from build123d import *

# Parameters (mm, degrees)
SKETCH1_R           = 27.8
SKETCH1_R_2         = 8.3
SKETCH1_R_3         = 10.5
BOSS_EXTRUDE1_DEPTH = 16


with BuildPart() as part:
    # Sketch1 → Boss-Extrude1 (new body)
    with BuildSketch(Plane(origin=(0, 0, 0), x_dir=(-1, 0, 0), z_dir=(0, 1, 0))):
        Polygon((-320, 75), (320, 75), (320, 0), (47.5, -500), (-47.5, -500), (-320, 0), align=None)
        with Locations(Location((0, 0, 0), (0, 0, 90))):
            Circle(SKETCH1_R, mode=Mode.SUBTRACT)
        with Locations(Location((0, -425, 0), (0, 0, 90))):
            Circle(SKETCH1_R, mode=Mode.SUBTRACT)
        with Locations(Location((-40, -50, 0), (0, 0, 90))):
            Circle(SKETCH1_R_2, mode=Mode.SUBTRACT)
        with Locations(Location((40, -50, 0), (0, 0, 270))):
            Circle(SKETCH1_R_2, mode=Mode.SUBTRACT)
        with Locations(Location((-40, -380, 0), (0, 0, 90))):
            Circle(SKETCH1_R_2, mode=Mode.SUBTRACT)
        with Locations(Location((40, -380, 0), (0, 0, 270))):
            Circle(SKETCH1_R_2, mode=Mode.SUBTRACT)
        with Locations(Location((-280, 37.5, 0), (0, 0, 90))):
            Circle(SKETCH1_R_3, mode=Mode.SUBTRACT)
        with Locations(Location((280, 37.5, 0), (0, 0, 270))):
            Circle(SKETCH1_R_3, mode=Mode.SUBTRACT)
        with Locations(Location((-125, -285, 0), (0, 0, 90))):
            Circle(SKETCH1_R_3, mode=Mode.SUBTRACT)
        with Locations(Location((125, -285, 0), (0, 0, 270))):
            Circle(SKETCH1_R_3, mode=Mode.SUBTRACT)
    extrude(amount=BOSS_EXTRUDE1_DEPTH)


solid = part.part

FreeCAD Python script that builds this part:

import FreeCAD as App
import Part
import Sketcher

doc = App.newDocument("Part")
body = doc.addObject("PartDesign::Body", "Body")

# Sketch on XZ plane
sketch1 = doc.addObject("Sketcher::SketchObject", "Sketch")
body.addObject(sketch1)
sketch1.AttachmentSupport = (doc.XZ_Plane, [""])
sketch1.MapMode = "FlatFace"
sketch1.addGeometry(Part.LineSegment(App.Vector(-320, 75, 0), App.Vector(320, 75, 0)), False)
sketch1.addGeometry(Part.LineSegment(App.Vector(320, 75, 0), App.Vector(320, 0, 0)), False)
sketch1.addGeometry(Part.LineSegment(App.Vector(320, 0, 0), App.Vector(47.5, -500, 0)), False)
sketch1.addGeometry(Part.LineSegment(App.Vector(47.5, -500, 0), App.Vector(-47.5, -500, 0)), False)
sketch1.addGeometry(Part.LineSegment(App.Vector(-47.5, -500, 0), App.Vector(-320, 0, 0)), False)
sketch1.addGeometry(Part.LineSegment(App.Vector(-320, 0, 0), App.Vector(-320, 75, 0)), False)
sketch1.addGeometry(Part.Circle(App.Vector(-40, -380, 0), App.Vector(0, 0, 1), 8.3), False)
sketch1.addGeometry(Part.Circle(App.Vector(-125, -285, 0), App.Vector(0, 0, 1), 10.5), False)
sketch1.addGeometry(Part.Circle(App.Vector(0, -425, 0), App.Vector(0, 0, 1), 27.8), False)
sketch1.addGeometry(Part.Circle(App.Vector(40, -380, 0), App.Vector(0, 0, 1), 8.3), False)
sketch1.addGeometry(Part.Circle(App.Vector(125, -285, 0), App.Vector(0, 0, 1), 10.5), False)
sketch1.addGeometry(Part.Circle(App.Vector(-280, 37.5, 0), App.Vector(0, 0, 1), 10.5), False)
sketch1.addGeometry(Part.Circle(App.Vector(-40, -50, 0), App.Vector(0, 0, 1), 8.3), False)
sketch1.addGeometry(Part.Circle(App.Vector(40, -50, 0), App.Vector(0, 0, 1), 8.3), False)
sketch1.addGeometry(Part.Circle(App.Vector(0, 0, 0), App.Vector(0, 0, 1), 27.8), False)
sketch1.addGeometry(Part.Circle(App.Vector(280, 37.5, 0), App.Vector(0, 0, 1), 10.5), False)
sketch1.addConstraint(Sketcher.Constraint("Coincident", 0, 2, 1, 1))
sketch1.addConstraint(Sketcher.Constraint("Coincident", 1, 2, 2, 1))
sketch1.addConstraint(Sketcher.Constraint("Coincident", 2, 2, 3, 1))
sketch1.addConstraint(Sketcher.Constraint("Coincident", 3, 2, 4, 1))
sketch1.addConstraint(Sketcher.Constraint("Coincident", 4, 2, 5, 1))
sketch1.addConstraint(Sketcher.Constraint("Coincident", 5, 2, 0, 1))
sketch1.addConstraint(Sketcher.Constraint("Horizontal", 0))
sketch1.addConstraint(Sketcher.Constraint("Vertical", 1))
sketch1.addConstraint(Sketcher.Constraint("Horizontal", 3))
sketch1.addConstraint(Sketcher.Constraint("Vertical", 5))
sketch1.addConstraint(Sketcher.Constraint("Coincident", 14, 3, -1, 1))
sketch1.addConstraint(Sketcher.Constraint("Equal", 6, 9))
sketch1.addConstraint(Sketcher.Constraint("Equal", 7, 10))
sketch1.addConstraint(Sketcher.Constraint("Equal", 10, 11))
sketch1.addConstraint(Sketcher.Constraint("Equal", 9, 12))
sketch1.addConstraint(Sketcher.Constraint("Equal", 12, 13))
sketch1.addConstraint(Sketcher.Constraint("Equal", 8, 14))
sketch1.addConstraint(Sketcher.Constraint("Equal", 11, 15))
sketch1.addConstraint(Sketcher.Constraint("Symmetric", 1, 2, 4, 2, -1, 1))
sketch1.addConstraint(Sketcher.Constraint("Symmetric", 6, 3, 9, 3, -2))
sketch1.addConstraint(Sketcher.Constraint("Symmetric", 7, 3, 10, 3, -2))
sketch1.addConstraint(Sketcher.Constraint("Symmetric", 12, 3, 13, 3, -2))
sketch1.addConstraint(Sketcher.Constraint("Symmetric", 11, 3, 15, 3, -2))
sketch1.addConstraint(Sketcher.Constraint("PointOnObject", 8, 3, -2))
sketch1.addConstraint(Sketcher.Constraint("PointOnObject", 1, 2, -1))
sketch1.addConstraint(Sketcher.Constraint("Vertical", 6, 3, 12, 3))
sketch1.addConstraint(Sketcher.Constraint("Equal", 2, 4))
sketch1.addConstraint(Sketcher.Constraint("Diameter", 7, 21.0))
sketch1.addConstraint(Sketcher.Constraint("Diameter", 6, 16.6))
sketch1.addConstraint(Sketcher.Constraint("Diameter", 8, 55.6))
sketch1.addConstraint(Sketcher.Constraint("DistanceX", 0, 1, 0, 2, 640.0))
sketch1.addConstraint(Sketcher.Constraint("DistanceX", 3, 2, 3, 1, 95.0))
sketch1.addConstraint(Sketcher.Constraint("DistanceY", 1, 2, 1, 1, 75.0))
sketch1.addConstraint(Sketcher.Constraint("DistanceX", 6, 3, -1, 1, 40.0))
sketch1.addConstraint(Sketcher.Constraint("DistanceY", 6, 3, -1, 1, 380.0))
sketch1.addConstraint(Sketcher.Constraint("DistanceX", 7, 3, -1, 1, 125.0))
sketch1.addConstraint(Sketcher.Constraint("DistanceY", 7, 3, -1, 1, 285.0))
sketch1.addConstraint(Sketcher.Constraint("DistanceY", 8, 3, -1, 1, 425.0))
sketch1.addConstraint(Sketcher.Constraint("DistanceX", 11, 3, -1, 1, 280.0))
sketch1.addConstraint(Sketcher.Constraint("DistanceY", 12, 3, -1, 1, 50.0))
sketch1.addConstraint(Sketcher.Constraint("DistanceY", 2, 2, -1, 1, 500.0))
sketch1.addConstraint(Sketcher.Constraint("DistanceY", -1, 1, 11, 3, 37.5))
pad1 = doc.addObject("PartDesign::Pad", "Pad")
body.addObject(pad1)
pad1.Profile = sketch1
pad1.Length = 16
pad1.Reversed = True

doc.recompute()
